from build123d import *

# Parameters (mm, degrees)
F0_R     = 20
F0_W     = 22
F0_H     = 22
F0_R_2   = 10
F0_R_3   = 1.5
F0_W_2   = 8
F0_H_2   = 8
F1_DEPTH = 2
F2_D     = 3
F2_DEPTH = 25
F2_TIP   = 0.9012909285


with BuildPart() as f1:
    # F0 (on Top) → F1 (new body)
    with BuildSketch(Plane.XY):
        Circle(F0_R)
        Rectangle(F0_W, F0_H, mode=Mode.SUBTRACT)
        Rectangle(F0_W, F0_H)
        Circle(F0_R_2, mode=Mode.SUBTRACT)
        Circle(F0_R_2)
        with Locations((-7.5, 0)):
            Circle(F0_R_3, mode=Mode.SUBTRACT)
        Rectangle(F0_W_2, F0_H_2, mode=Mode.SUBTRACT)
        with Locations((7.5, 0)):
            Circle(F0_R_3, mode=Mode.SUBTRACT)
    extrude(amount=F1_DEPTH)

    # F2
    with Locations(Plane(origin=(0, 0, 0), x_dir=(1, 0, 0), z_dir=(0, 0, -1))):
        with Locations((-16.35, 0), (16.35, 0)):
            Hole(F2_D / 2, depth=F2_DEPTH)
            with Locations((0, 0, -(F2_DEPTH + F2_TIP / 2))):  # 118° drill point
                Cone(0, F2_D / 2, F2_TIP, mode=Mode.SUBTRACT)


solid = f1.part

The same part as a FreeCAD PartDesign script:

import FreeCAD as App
import Part
import Sketcher

V = App.Vector


def add_polygon(sketch, points):
    """Adds a closed chain of lines whose ends are joined by coincident constraints."""
    first, n = sketch.GeometryCount, len(points)
    for a, b in zip(points, points[1:] + points[:1]):
        sketch.addGeometry(Part.LineSegment(App.Vector(*a, 0), App.Vector(*b, 0)), False)
    for i in range(n):
        sketch.addConstraint(Sketcher.Constraint("Coincident", first + i, 2, first + (i + 1) % n, 1))

doc = App.newDocument("Part")
body = doc.addObject("PartDesign::Body", "Body")

sketch1 = body.newObject("Sketcher::SketchObject", "Sketch")
sketch1.AttachmentSupport = (doc.getObject("XY_Plane"), [""])
sketch1.MapMode = "FlatFace"
sketch1.addGeometry(Part.Circle(V(0, 0, 0), V(0, 0, 1), 20), False)
sketch1.addGeometry(Part.Circle(V(-7.5, 0, 0), V(0, 0, 1), 1.5), False)
add_polygon(sketch1, [(4, -4), (-4, -4), (-4, 4), (4, 4)])
sketch1.addGeometry(Part.Circle(V(7.5, 0, 0), V(0, 0, 1), 1.5), False)
sketch1.addConstraint(Sketcher.Constraint("Horizontal", 2))
sketch1.addConstraint(Sketcher.Constraint("Vertical", 3))
sketch1.addConstraint(Sketcher.Constraint("Horizontal", 4))
sketch1.addConstraint(Sketcher.Constraint("Vertical", 5))
sketch1.addConstraint(Sketcher.Constraint("Coincident", 0, 3, -1, 1))
sketch1.addConstraint(Sketcher.Constraint("Equal", 1, 6))
sketch1.addConstraint(Sketcher.Constraint("Symmetric", 1, 3, 6, 3, -1, 1))
sketch1.addConstraint(Sketcher.Constraint("Symmetric", 2, 2, 4, 2, -1, 1))
sketch1.addConstraint(Sketcher.Constraint("PointOnObject", 1, 3, -1))
sketch1.addConstraint(Sketcher.Constraint("Equal", 4, 3))
sketch1.addConstraint(Sketcher.Constraint("Diameter", 0, 40.0))
sketch1.addConstraint(Sketcher.Constraint("Diameter", 1, 3.0))
sketch1.addConstraint(Sketcher.Constraint("DistanceX", 2, 2, 2, 1, 8.0))
sketch1.addConstraint(Sketcher.Constraint("DistanceX", 1, 3, 6, 3, 15.0))
pad1 = body.newObject("PartDesign::Pad", "Pad")
pad1.Profile = sketch1
pad1.Length = 2

sketch2 = body.newObject("Sketcher::SketchObject", "Sketch001")
sketch2.AttachmentSupport = (doc.getObject("XY_Plane"), [""])
sketch2.MapMode = "FlatFace"
sketch2.addGeometry(Part.Circle(V(-16.4, 0, 0), V(0, 0, 1), 1.5), False)
sketch2.addGeometry(Part.Circle(V(16.4, 0, 0), V(0, 0, 1), 1.5), False)
sketch2.addConstraint(Sketcher.Constraint("Equal", 0, 1))
sketch2.addConstraint(Sketcher.Constraint("Symmetric", 0, 3, 1, 3, -1, 1))
sketch2.addConstraint(Sketcher.Constraint("PointOnObject", 0, 3, -1))
sketch2.addConstraint(Sketcher.Constraint("Diameter", 0, 3.0))
sketch2.addConstraint(Sketcher.Constraint("DistanceX", 0, 3, 1, 3, 32.7))
doc.recompute()
hole = body.newObject("PartDesign::Hole", "Hole")
hole.Profile = sketch2
hole.ThreadType = "None"
hole.Diameter = 3
hole.DepthType = "Dimension"
hole.Depth = 25
hole.DrillPoint = "Angled"
hole.DrillPointAngle = 118
hole.Reversed = True

doc.recompute()
